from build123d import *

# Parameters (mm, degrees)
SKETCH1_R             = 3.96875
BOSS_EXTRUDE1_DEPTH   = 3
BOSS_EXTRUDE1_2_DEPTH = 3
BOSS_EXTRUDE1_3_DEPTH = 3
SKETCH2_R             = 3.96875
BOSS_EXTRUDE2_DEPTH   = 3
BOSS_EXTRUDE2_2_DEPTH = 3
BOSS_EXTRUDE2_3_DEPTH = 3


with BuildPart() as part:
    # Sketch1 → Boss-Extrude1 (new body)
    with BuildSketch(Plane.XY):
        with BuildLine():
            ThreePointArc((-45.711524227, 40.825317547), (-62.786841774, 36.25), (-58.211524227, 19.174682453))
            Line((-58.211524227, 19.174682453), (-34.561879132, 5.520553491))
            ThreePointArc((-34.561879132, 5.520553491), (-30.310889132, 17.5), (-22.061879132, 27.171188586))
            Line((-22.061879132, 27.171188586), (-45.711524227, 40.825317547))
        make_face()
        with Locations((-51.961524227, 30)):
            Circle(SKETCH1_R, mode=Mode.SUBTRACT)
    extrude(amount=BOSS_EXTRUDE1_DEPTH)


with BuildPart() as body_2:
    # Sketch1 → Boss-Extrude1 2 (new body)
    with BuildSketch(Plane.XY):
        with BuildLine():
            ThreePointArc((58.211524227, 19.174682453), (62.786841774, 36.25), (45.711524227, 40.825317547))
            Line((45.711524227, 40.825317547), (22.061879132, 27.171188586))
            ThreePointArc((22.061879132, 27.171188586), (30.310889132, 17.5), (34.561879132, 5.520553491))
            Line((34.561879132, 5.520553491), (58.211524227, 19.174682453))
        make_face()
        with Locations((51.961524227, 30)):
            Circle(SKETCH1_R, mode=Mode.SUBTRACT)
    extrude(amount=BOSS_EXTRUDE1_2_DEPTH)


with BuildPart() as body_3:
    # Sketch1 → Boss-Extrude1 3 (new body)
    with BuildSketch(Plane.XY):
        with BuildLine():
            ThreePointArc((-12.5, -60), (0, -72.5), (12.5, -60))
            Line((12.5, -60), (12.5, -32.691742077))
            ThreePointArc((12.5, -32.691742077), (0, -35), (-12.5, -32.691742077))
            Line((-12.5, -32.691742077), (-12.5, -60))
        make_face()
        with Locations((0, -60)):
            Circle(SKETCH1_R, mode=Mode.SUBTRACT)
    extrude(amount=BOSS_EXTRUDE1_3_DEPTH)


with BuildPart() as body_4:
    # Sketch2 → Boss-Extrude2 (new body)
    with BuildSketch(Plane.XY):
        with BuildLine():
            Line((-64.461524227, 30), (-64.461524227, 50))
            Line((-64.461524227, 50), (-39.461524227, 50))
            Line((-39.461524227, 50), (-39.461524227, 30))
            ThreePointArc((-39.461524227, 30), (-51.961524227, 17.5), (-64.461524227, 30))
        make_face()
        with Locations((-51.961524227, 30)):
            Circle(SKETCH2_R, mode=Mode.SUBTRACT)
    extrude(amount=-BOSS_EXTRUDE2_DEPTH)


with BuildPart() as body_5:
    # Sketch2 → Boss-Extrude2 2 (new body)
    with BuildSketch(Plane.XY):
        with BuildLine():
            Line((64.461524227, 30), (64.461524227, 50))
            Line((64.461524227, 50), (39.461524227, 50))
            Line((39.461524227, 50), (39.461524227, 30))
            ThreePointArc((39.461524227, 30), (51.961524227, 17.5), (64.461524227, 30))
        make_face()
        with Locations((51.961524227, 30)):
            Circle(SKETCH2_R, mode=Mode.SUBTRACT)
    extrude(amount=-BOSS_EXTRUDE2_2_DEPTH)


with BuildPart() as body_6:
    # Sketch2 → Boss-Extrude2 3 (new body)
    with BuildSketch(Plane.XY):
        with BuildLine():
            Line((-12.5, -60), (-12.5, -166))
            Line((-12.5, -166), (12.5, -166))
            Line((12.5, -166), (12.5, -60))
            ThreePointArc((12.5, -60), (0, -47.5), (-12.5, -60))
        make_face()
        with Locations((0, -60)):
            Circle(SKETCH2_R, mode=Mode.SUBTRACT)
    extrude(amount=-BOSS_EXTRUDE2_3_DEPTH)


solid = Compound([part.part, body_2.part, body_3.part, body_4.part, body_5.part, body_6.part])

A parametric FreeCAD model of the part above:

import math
import FreeCAD as App
import Part
import Sketcher
Q = App.Units.Quantity

doc = App.newDocument("Part")
body = doc.addObject("PartDesign::Body", "Body")

# Sketch on XY plane
sketch1 = body.newObject("Sketcher::SketchObject", "Sketch")
sketch1.AttachmentSupport = (doc.getObject("XY_Plane"), [""])
sketch1.MapMode = "FlatFace"
sketch1.addGeometry(Part.ArcOfCircle(Part.Circle(App.Vector(-52, 30, 0), App.Vector(0, 0, 1), 12.5), math.radians(60), math.radians(240)), False)
sketch1.addGeometry(Part.LineSegment(App.Vector(-58.2, 19.2, 0), App.Vector(-34.6, 5.5, 0)), False)
sketch1.addGeometry(Part.ArcOfCircle(Part.Circle(App.Vector(0, 0, 0), App.Vector(0, 0, 1), 35), math.radians(129), math.radians(171)), False)
sketch1.addGeometry(Part.LineSegment(App.Vector(-22.1, 27.2, 0), App.Vector(-45.7, 40.8, 0)), False)
sketch1.addGeometry(Part.Circle(App.Vector(-52, 30, 0), App.Vector(0, 0, 1), 4), False)
sketch1.addConstraint(Sketcher.Constraint("Tangent", 0, 2, 1, 1))
sketch1.addConstraint(Sketcher.Constraint("Coincident", 1, 2, 2, 2))
sketch1.addConstraint(Sketcher.Constraint("Coincident", 2, 1, 3, 1))
sketch1.addConstraint(Sketcher.Constraint("Tangent", 3, 2, 0, 1))
sketch1.addConstraint(Sketcher.Constraint("Coincident", 2, 3, -1, 1))
sketch1.addConstraint(Sketcher.Constraint("Coincident", 4, 3, 0, 3))
sketch1.addConstraint(Sketcher.Constraint("Parallel", 1, 3))
sketch1.addConstraint(Sketcher.Constraint("Equal", 1, 3))
sketch1.addConstraint(Sketcher.Constraint("Radius", 2, Q("35 mm")))
sketch1.addConstraint(Sketcher.Constraint("Radius", 0, Q("12.5 mm")))
sketch1.addConstraint(Sketcher.Constraint("Angle", 1, Q("-30 deg")))
sketch1.addConstraint(Sketcher.Constraint("DistanceY", -1, 1, 0, 3, Q("30 mm")))
sketch1.addConstraint(Sketcher.Constraint("Diameter", 4, Q("7.9375 mm")))
pad1 = body.newObject("PartDesign::Pad", "Pad")
pad1.Profile = sketch1
pad1.Length = 3
body2 = doc.addObject("PartDesign::Body", "Body001")

# Sketch on XY plane
sketch2 = body2.newObject("Sketcher::SketchObject", "Sketch001")
sketch2.AttachmentSupport = (doc.getObject("XY_Plane001"), [""])
sketch2.MapMode = "FlatFace"
sketch2.addGeometry(Part.ArcOfCircle(Part.Circle(App.Vector(52, 30, 0), App.Vector(0, 0, 1), 12.5), math.radians(-60), math.radians(120)), False)
sketch2.addGeometry(Part.LineSegment(App.Vector(45.7, 40.8, 0), App.Vector(22.1, 27.2, 0)), False)
sketch2.addGeometry(Part.ArcOfCircle(Part.Circle(App.Vector(0, 0, 0), App.Vector(0, 0, 1), 35), math.radians(9), math.radians(51)), False)
sketch2.addGeometry(Part.LineSegment(App.Vector(34.6, 5.5, 0), App.Vector(58.2, 19.2, 0)), False)
sketch2.addGeometry(Part.Circle(App.Vector(52, 30, 0), App.Vector(0, 0, 1), 4), False)
sketch2.addConstraint(Sketcher.Constraint("Tangent", 0, 2, 1, 1))
sketch2.addConstraint(Sketcher.Constraint("Coincident", 1, 2, 2, 2))
sketch2.addConstraint(Sketcher.Constraint("Coincident", 2, 1, 3, 1))
sketch2.addConstraint(Sketcher.Constraint("Tangent", 3, 2, 0, 1))
sketch2.addConstraint(Sketcher.Constraint("Coincident", 2, 3, -1, 1))
sketch2.addConstraint(Sketcher.Constraint("Coincident", 4, 3, 0, 3))
sketch2.addConstraint(Sketcher.Constraint("Parallel", 1, 3))
sketch2.addConstraint(Sketcher.Constraint("Equal", 1, 3))
sketch2.addConstraint(Sketcher.Constraint("Radius", 2, Q("35 mm")))
sketch2.addConstraint(Sketcher.Constraint("Radius", 0, Q("12.5 mm")))
sketch2.addConstraint(Sketcher.Constraint("Angle", 1, Q("-150 deg")))
sketch2.addConstraint(Sketcher.Constraint("DistanceY", -1, 1, 0, 3, Q("30 mm")))
sketch2.addConstraint(Sketcher.Constraint("Diameter", 4, Q("7.9375 mm")))
pad2 = body2.newObject("PartDesign::Pad", "Pad001")
pad2.Profile = sketch2
pad2.Length = 3
body3 = doc.addObject("PartDesign::Body", "Body002")

# Sketch on XY plane
sketch3 = body3.newObject("Sketcher::SketchObject", "Sketch002")
sketch3.AttachmentSupport = (doc.getObject("XY_Plane002"), [""])
sketch3.MapMode = "FlatFace"
sketch3.addGeometry(Part.ArcOfCircle(Part.Circle(App.Vector(0, -60, 0), App.Vector(0, 0, 1), 12.5), math.radians(180), math.radians(360)), False)
sketch3.addGeometry(Part.LineSegment(App.Vector(12.5, -60, 0), App.Vector(12.5, -32.7, 0)), False)
sketch3.addGeometry(Part.ArcOfCircle(Part.Circle(App.Vector(0, 0, 0), App.Vector(0, 0, 1), 35), math.radians(-111), math.radians(-69)), False)
sketch3.addGeometry(Part.LineSegment(App.Vector(-12.5, -32.7, 0), App.Vector(-12.5, -60, 0)), False)
sketch3.addGeometry(Part.Circle(App.Vector(0, -60, 0), App.Vector(0, 0, 1), 4), False)
sketch3.addConstraint(Sketcher.Constraint("Tangent", 0, 2, 1, 1))
sketch3.addConstraint(Sketcher.Constraint("Coincident", 1, 2, 2, 2))
sketch3.addConstraint(Sketcher.Constraint("Coincident", 2, 1, 3, 1))
sketch3.addConstraint(Sketcher.Constraint("Tangent", 3, 2, 0, 1))
sketch3.addConstraint(Sketcher.Constraint("Vertical", 1))
sketch3.addConstraint(Sketcher.Constraint("Vertical", 3))
sketch3.addConstraint(Sketcher.Constraint("Coincident", 2, 3, -1, 1))
sketch3.addConstraint(Sketcher.Constraint("Coincident", 4, 3, 0, 3))
sketch3.addConstraint(Sketcher.Constraint("PointOnObject", 0, 3, -2))
sketch3.addConstraint(Sketcher.Constraint("Radius", 2, Q("35 mm")))
sketch3.addConstraint(Sketcher.Constraint("Radius", 0, Q("12.5 mm")))
sketch3.addConstraint(Sketcher.Constraint("DistanceY", 0, 3, -1, 1, Q("60 mm")))
sketch3.addConstraint(Sketcher.Constraint("Diameter", 4, Q("7.9375 mm")))
pad3 = body3.newObject("PartDesign::Pad", "Pad002")
pad3.Profile = sketch3
pad3.Length = 3
body4 = doc.addObject("PartDesign::Body", "Body003")

# Sketch on XY plane
sketch4 = body4.newObject("Sketcher::SketchObject", "Sketch003")
sketch4.AttachmentSupport = (doc.getObject("XY_Plane003"), [""])
sketch4.MapMode = "FlatFace"
sketch4.addGeometry(Part.LineSegment(App.Vector(-64.5, 50, 0), App.Vector(-64.5, 30, 0)), False)
sketch4.addGeometry(Part.ArcOfCircle(Part.Circle(App.Vector(-52, 30, 0), App.Vector(0, 0, 1), 12.5), math.radians(180), math.radians(360)), False)
sketch4.addGeometry(Part.LineSegment(App.Vector(-39.5, 30, 0), App.Vector(-39.5, 50, 0)), False)
sketch4.addGeometry(Part.LineSegment(App.Vector(-39.5, 50, 0), App.Vector(-64.5, 50, 0)), False)
sketch4.addGeometry(Part.Circle(App.Vector(-52, 30, 0), App.Vector(0, 0, 1), 4), False)
sketch4.addConstraint(Sketcher.Constraint("Tangent", 0, 2, 1, 1))
sketch4.addConstraint(Sketcher.Constraint("Tangent", 1, 2, 2, 1))
sketch4.addConstraint(Sketcher.Constraint("Coincident", 2, 2, 3, 1))
sketch4.addConstraint(Sketcher.Constraint("Coincident", 3, 2, 0, 1))
sketch4.addConstraint(Sketcher.Constraint("Vertical", 0))
sketch4.addConstraint(Sketcher.Constraint("Vertical", 2))
sketch4.addConstraint(Sketcher.Constraint("Horizontal", 3))
sketch4.addConstraint(Sketcher.Constraint("Coincident", 4, 3, 1, 3))
sketch4.addConstraint(Sketcher.Constraint("Radius", 1, Q("12.5 mm")))
sketch4.addConstraint(Sketcher.Constraint("DistanceY", 0, 2, 0, 1, Q("20 mm")))
sketch4.addConstraint(Sketcher.Constraint("DistanceY", -1, 1, 1, 3, Q("30 mm")))
sketch4.addConstraint(Sketcher.Constraint("Diameter", 4, Q("7.9375 mm")))
sketch4.addConstraint(Sketcher.Constraint("DistanceX", 1, 3, -1, 1, Q("51.961524 mm")))
pad4 = body4.newObject("PartDesign::Pad", "Pad003")
pad4.Profile = sketch4
pad4.Length = 3
pad4.Reversed = True
body5 = doc.addObject("PartDesign::Body", "Body004")

# Sketch on XY plane
sketch5 = body5.newObject("Sketcher::SketchObject", "Sketch004")
sketch5.AttachmentSupport = (doc.getObject("XY_Plane004"), [""])
sketch5.MapMode = "FlatFace"
sketch5.addGeometry(Part.LineSegment(App.Vector(64.5, 30, 0), App.Vector(64.5, 50, 0)), False)
sketch5.addGeometry(Part.LineSegment(App.Vector(64.5, 50, 0), App.Vector(39.5, 50, 0)), False)
sketch5.addGeometry(Part.LineSegment(App.Vector(39.5, 50, 0), App.Vector(39.5, 30, 0)), False)
sketch5.addGeometry(Part.ArcOfCircle(Part.Circle(App.Vector(52, 30, 0), App.Vector(0, 0, 1), 12.5), math.radians(180), math.radians(360)), False)
sketch5.addGeometry(Part.Circle(App.Vector(52, 30, 0), App.Vector(0, 0, 1), 4), False)
sketch5.addConstraint(Sketcher.Constraint("Coincident", 0, 2, 1, 1))
sketch5.addConstraint(Sketcher.Constraint("Coincident", 1, 2, 2, 1))
sketch5.addConstraint(Sketcher.Constraint("Tangent", 2, 2, 3, 1))
sketch5.addConstraint(Sketcher.Constraint("Tangent", 3, 2, 0, 1))
sketch5.addConstraint(Sketcher.Constraint("Vertical", 0))
sketch5.addConstraint(Sketcher.Constraint("Horizontal", 1))
sketch5.addConstraint(Sketcher.Constraint("Vertical", 2))
sketch5.addConstraint(Sketcher.Constraint("Coincident", 4, 3, 3, 3))
sketch5.addConstraint(Sketcher.Constraint("Radius", 3, Q("12.5 mm")))
sketch5.addConstraint(Sketcher.Constraint("DistanceY", 0, 1, 0, 2, Q("20 mm")))
sketch5.addConstraint(Sketcher.Constraint("DistanceY", -1, 1, 3, 3, Q("30 mm")))
sketch5.addConstraint(Sketcher.Constraint("Diameter", 4, Q("7.9375 mm")))
sketch5.addConstraint(Sketcher.Constraint("DistanceX", -1, 1, 3, 3, Q("51.961524 mm")))
pad5 = body5.newObject("PartDesign::Pad", "Pad004")
pad5.Profile = sketch5
pad5.Length = 3
pad5.Reversed = True
body6 = doc.addObject("PartDesign::Body", "Body005")

# Sketch on XY plane
sketch6 = body6.newObject("Sketcher::SketchObject", "Sketch005")
sketch6.AttachmentSupport = (doc.getObject("XY_Plane005"), [""])
sketch6.MapMode = "FlatFace"
sketch6.addGeometry(Part.LineSegment(App.Vector(-12.5, -60, 0), App.Vector(-12.5, -166, 0)), False)
sketch6.addGeometry(Part.LineSegment(App.Vector(-12.5, -166, 0), App.Vector(12.5, -166, 0)), False)
sketch6.addGeometry(Part.LineSegment(App.Vector(12.5, -166, 0), App.Vector(12.5, -60, 0)), False)
sketch6.addGeometry(Part.ArcOfCircle(Part.Circle(App.Vector(0, -60, 0), App.Vector(0, 0, 1), 12.5), math.radians(0), math.radians(180)), False)
sketch6.addGeometry(Part.Circle(App.Vector(0, -60, 0), App.Vector(0, 0, 1), 4), False)
sketch6.addConstraint(Sketcher.Constraint("Coincident", 0, 2, 1, 1))
sketch6.addConstraint(Sketcher.Constraint("Coincident", 1, 2, 2, 1))
sketch6.addConstraint(Sketcher.Constraint("Tangent", 2, 2, 3, 1))
sketch6.addConstraint(Sketcher.Constraint("Tangent", 3, 2, 0, 1))
sketch6.addConstraint(Sketcher.Constraint("Vertical", 0))
sketch6.addConstraint(Sketcher.Constraint("Horizontal", 1))
sketch6.addConstraint(Sketcher.Constraint("Vertical", 2))
sketch6.addConstraint(Sketcher.Constraint("Coincident", 4, 3, 3, 3))
sketch6.addConstraint(Sketcher.Constraint("PointOnObject", 3, 3, -2))
sketch6.addConstraint(Sketcher.Constraint("Radius", 3, Q("12.5 mm")))
sketch6.addConstraint(Sketcher.Constraint("DistanceY", 0, 2, 0, 1, Q("106 mm")))
sketch6.addConstraint(Sketcher.Constraint("DistanceY", 3, 3, -1, 1, Q("60 mm")))
sketch6.addConstraint(Sketcher.Constraint("Diameter", 4, Q("7.9375 mm")))
pad6 = body6.newObject("PartDesign::Pad", "Pad005")
pad6.Profile = sketch6
pad6.Length = 3
pad6.Reversed = True

doc.recompute()
